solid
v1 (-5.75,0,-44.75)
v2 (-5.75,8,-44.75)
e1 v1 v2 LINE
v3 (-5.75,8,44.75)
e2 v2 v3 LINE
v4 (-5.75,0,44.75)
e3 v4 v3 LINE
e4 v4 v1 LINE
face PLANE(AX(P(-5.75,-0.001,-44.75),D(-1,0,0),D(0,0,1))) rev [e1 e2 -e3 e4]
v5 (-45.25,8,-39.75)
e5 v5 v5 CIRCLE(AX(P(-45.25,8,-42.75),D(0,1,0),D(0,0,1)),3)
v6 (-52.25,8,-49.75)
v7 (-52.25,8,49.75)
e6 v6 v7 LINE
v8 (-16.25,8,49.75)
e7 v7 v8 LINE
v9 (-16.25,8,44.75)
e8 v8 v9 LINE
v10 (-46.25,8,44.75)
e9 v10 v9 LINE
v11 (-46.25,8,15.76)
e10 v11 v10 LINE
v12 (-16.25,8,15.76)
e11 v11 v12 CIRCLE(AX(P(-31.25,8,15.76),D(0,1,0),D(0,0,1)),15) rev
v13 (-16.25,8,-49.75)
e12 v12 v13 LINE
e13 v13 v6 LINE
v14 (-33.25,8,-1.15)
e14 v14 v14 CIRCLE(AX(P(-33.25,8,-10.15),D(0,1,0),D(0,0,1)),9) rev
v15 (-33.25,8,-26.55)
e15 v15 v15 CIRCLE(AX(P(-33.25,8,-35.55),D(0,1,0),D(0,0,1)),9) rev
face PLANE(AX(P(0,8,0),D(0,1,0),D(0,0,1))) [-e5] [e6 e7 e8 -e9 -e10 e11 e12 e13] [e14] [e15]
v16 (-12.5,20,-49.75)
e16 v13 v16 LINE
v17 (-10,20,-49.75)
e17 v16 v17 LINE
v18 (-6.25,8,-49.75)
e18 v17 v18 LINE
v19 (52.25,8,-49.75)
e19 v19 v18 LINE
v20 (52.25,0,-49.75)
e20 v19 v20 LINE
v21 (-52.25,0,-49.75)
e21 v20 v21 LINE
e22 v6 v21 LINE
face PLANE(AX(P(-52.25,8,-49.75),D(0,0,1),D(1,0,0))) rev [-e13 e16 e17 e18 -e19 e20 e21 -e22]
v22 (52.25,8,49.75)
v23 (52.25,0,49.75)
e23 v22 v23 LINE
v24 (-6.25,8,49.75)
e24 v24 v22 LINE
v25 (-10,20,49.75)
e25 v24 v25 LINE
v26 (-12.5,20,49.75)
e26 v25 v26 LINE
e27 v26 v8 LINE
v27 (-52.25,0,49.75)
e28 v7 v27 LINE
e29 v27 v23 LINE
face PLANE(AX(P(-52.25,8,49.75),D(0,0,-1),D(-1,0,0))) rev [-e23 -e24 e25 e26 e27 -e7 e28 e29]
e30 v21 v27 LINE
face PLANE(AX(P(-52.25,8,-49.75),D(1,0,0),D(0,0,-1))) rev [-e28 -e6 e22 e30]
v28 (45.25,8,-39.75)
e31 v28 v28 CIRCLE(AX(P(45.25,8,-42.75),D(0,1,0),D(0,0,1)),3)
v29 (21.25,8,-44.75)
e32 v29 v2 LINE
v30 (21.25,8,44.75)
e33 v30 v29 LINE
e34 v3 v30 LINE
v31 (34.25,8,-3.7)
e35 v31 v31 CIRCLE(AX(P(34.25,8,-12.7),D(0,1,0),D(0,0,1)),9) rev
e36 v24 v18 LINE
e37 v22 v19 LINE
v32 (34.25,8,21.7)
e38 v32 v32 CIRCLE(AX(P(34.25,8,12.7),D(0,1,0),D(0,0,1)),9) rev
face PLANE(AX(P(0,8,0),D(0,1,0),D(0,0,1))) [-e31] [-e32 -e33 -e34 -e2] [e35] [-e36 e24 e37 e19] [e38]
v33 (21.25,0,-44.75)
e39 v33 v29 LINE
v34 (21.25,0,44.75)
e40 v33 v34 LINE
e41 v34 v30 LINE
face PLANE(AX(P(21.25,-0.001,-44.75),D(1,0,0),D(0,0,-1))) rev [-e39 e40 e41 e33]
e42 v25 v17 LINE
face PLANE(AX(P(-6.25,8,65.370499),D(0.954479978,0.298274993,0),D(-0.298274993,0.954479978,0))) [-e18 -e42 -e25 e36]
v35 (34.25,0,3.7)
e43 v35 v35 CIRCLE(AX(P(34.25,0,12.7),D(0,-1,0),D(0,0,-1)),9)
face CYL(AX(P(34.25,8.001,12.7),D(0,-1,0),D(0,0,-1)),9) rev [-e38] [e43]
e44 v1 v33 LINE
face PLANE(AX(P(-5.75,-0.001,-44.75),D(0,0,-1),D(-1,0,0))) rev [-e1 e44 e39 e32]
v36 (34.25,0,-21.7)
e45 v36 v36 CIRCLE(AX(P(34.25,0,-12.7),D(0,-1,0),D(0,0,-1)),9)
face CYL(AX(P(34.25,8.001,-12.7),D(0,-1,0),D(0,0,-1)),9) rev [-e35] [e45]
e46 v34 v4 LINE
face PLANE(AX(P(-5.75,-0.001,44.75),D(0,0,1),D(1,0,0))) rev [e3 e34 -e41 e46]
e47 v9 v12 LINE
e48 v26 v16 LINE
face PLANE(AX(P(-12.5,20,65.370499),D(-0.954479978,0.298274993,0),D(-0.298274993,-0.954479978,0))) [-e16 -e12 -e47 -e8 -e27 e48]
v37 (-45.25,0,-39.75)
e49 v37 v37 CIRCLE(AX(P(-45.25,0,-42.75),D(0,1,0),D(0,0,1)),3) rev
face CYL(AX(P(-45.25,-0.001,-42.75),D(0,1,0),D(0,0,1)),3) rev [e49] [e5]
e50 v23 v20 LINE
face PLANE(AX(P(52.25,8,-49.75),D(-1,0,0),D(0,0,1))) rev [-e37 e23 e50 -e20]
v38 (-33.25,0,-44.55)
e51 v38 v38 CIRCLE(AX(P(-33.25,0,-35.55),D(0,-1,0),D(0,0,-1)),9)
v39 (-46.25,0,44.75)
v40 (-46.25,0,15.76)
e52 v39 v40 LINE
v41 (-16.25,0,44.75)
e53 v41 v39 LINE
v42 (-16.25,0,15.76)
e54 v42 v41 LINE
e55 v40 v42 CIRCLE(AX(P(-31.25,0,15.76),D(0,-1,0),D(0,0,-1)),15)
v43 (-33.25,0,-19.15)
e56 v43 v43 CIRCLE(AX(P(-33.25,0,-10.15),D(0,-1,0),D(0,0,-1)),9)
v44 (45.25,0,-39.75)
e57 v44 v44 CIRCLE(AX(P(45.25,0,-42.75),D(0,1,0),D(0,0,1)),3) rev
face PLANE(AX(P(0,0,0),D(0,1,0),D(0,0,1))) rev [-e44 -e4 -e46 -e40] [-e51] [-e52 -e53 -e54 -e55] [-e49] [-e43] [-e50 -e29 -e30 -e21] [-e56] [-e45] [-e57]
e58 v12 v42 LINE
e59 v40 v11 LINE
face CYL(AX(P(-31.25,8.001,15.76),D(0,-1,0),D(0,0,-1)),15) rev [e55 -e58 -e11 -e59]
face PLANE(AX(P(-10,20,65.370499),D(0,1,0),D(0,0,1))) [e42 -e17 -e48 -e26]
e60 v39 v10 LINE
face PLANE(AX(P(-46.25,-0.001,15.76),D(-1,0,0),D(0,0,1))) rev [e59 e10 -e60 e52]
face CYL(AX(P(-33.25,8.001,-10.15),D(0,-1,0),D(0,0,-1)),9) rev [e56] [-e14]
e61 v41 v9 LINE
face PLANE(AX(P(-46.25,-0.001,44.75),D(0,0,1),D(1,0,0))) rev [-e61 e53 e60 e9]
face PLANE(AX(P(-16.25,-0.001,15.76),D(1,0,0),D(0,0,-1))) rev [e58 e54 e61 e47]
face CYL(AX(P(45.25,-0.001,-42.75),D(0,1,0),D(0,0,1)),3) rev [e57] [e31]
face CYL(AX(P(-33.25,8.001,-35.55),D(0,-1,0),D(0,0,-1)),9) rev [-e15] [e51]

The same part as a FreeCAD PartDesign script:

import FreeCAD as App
import Part
import Sketcher

doc = App.newDocument("Part")
body = doc.addObject("PartDesign::Body", "Body")

# Sketch on XZ plane
sketch1 = body.newObject("Sketcher::SketchObject", "Sketch")
sketch1.AttachmentSupport = (doc.getObject("XZ_Plane"), [""])
sketch1.MapMode = "FlatFace"
sketch1.addGeometry([
    Part.LineSegment(App.Vector(-52, -50, 0), App.Vector(-52, 50, 0)),
    Part.LineSegment(App.Vector(-52, 50, 0), App.Vector(52, 50, 0)),
    Part.LineSegment(App.Vector(52, 50, 0), App.Vector(52, -50, 0)),
    Part.LineSegment(App.Vector(52, -50, 0), App.Vector(-52, -50, 0)),
], False)
sketch1.addConstraint([
    Sketcher.Constraint("Coincident", 0, 2, 1, 1),
    Sketcher.Constraint("Coincident", 1, 2, 2, 1),
    Sketcher.Constraint("Coincident", 2, 2, 3, 1),
    Sketcher.Constraint("Coincident", 3, 2, 0, 1),
    Sketcher.Constraint("Vertical", 0),
    Sketcher.Constraint("Horizontal", 1),
    Sketcher.Constraint("Vertical", 2),
    Sketcher.Constraint("Horizontal", 3),
    Sketcher.Constraint("Symmetric", 0, 2, 2, 2, -1, 1),
    Sketcher.Constraint("DistanceX", 1, 1, 1, 2, 104.5),
    Sketcher.Constraint("DistanceY", 0, 1, 0, 2, 99.5),
])
pad1 = body.newObject("PartDesign::Pad", "Pad")
pad1.Profile = sketch1
pad1.Length = 8
pad1.Reversed = True

# Sketch on XZ plane
sketch2 = body.newObject("Sketcher::SketchObject", "Sketch001")
sketch2.AttachmentSupport = (doc.getObject("XZ_Plane"), [""])
sketch2.MapMode = "FlatFace"
sketch2.addGeometry(Part.Circle(App.Vector(-33, -10, 0), App.Vector(0, 0, 1), 9), False)
sketch2.addConstraint([
    Sketcher.Constraint("Diameter", 0, 18.0),
    Sketcher.Constraint("DistanceX", 0, 3, -1, 1, 33.25),
    Sketcher.Constraint("DistanceY", 0, 3, -1, 1, 10.15),
])
pocket1 = body.newObject("PartDesign::Pocket", "Pocket")
pocket1.Profile = sketch2
pocket1.Type = "UpToFirst"

# Sketch on XZ plane
sketch3 = body.newObject("Sketcher::SketchObject", "Sketch002")
sketch3.AttachmentSupport = (doc.getObject("XZ_Plane"), [""])
sketch3.MapMode = "FlatFace"
sketch3.addGeometry(Part.Circle(App.Vector(-33, -36, 0), App.Vector(0, 0, 1), 9), False)
sketch3.addConstraint([
    Sketcher.Constraint("Diameter", 0, 18.0),
    Sketcher.Constraint("DistanceX", 0, 3, -1, 1, 33.25),
    Sketcher.Constraint("DistanceY", 0, 3, -1, 1, 35.55),
])
pocket2 = body.newObject("PartDesign::Pocket", "Pocket001")
pocket2.Profile = sketch3
pocket2.Type = "UpToFirst"

# Sketch on XZ plane
sketch4 = body.newObject("Sketcher::SketchObject", "Sketch003")
sketch4.AttachmentSupport = (doc.getObject("XZ_Plane"), [""])
sketch4.MapMode = "FlatFace"
sketch4.addGeometry(Part.Circle(App.Vector(34, 13, 0), App.Vector(0, 0, 1), 9), False)
sketch4.addConstraint([
    Sketcher.Constraint("Diameter", 0, 18.0),
    Sketcher.Constraint("DistanceY", -1, 1, 0, 3, 12.7),
    Sketcher.Constraint("DistanceX", -1, 1, 0, 3, 34.25),
])
pocket3 = body.newObject("PartDesign::Pocket", "Pocket002")
pocket3.Profile = sketch4
pocket3.Type = "UpToFirst"

# Sketch on XZ plane
sketch5 = body.newObject("Sketcher::SketchObject", "Sketch004")
sketch5.AttachmentSupport = (doc.getObject("XZ_Plane"), [""])
sketch5.MapMode = "FlatFace"
sketch5.addGeometry(Part.Circle(App.Vector(34, -13, 0), App.Vector(0, 0, 1), 9), False)
sketch5.addConstraint([
    Sketcher.Constraint("Diameter", 0, 18.0),
    Sketcher.Constraint("DistanceY", 0, 3, -1, 1, 12.7),
    Sketcher.Constraint("DistanceX", -1, 1, 0, 3, 34.25),
])
pocket4 = body.newObject("PartDesign::Pocket", "Pocket003")
pocket4.Profile = sketch5
pocket4.Type = "UpToFirst"

# Sketch on XZ plane
sketch6 = body.newObject("Sketcher::SketchObject", "Sketch005")
sketch6.AttachmentSupport = (doc.getObject("XZ_Plane"), [""])
sketch6.MapMode = "FlatFace"
sketch6.addGeometry(Part.Circle(App.Vector(-31, 16, 0), App.Vector(0, 0, 1), 15), False)
sketch6.addConstraint([
    Sketcher.Constraint("Diameter", 0, 30.0),
    Sketcher.Constraint("DistanceX", 0, 3, -1, 1, 31.25),
    Sketcher.Constraint("DistanceY", -1, 1, 0, 3, 15.76),
])
pocket5 = body.newObject("PartDesign::Pocket", "Pocket004")
pocket5.Profile = sketch6
pocket5.Type = "UpToFirst"

# Sketch on XY plane
sketch7 = body.newObject("Sketcher::SketchObject", "Sketch006")
sketch7.AttachmentSupport = (doc.getObject("XY_Plane"), [""])
sketch7.MapMode = "FlatFace"
sketch7.AttachmentOffset = App.Placement(App.Vector(0, 0, -49.75), App.Rotation())
sketch7.addGeometry([
    Part.LineSegment(App.Vector(-10, 20, 0), App.Vector(-6.2, 8, 0)),
    Part.LineSegment(App.Vector(-6.2, 8, 0), App.Vector(-16.2, 8, 0)),
    Part.LineSegment(App.Vector(-16.2, 8, 0), App.Vector(-12.5, 20, 0)),
    Part.LineSegment(App.Vector(-12.5, 20, 0), App.Vector(-10, 20, 0)),
], False)
sketch7.addConstraint([
    Sketcher.Constraint("Coincident", 0, 2, 1, 1),
    Sketcher.Constraint("Coincident", 1, 2, 2, 1),
    Sketcher.Constraint("Coincident", 2, 2, 3, 1),
    Sketcher.Constraint("Coincident", 3, 2, 0, 1),
    Sketcher.Constraint("Horizontal", 1),
    Sketcher.Constraint("Horizontal", 3),
    Sketcher.Constraint("Equal", 0, 2),
    Sketcher.Constraint("DistanceX", 1, 2, 1, 1, 10.0),
    Sketcher.Constraint("DistanceX", 3, 1, 3, 2, 2.5),
    Sketcher.Constraint("DistanceY", -1, 1, 0, 2, 8.0),
    Sketcher.Constraint("DistanceY", -1, 1, 2, 2, 20.0),
    Sketcher.Constraint("DistanceX", 3, 2, -1, 1, 10.0),
])
pad2 = body.newObject("PartDesign::Pad", "Pad001")
pad2.Profile = sketch7
pad2.Length = 99.5

# Sketch on XZ plane
sketch8 = body.newObject("Sketcher::SketchObject", "Sketch007")
sketch8.AttachmentSupport = (doc.getObject("XZ_Plane"), [""])
sketch8.MapMode = "FlatFace"
sketch8.AttachmentOffset = App.Placement(App.Vector(0, 0, -8), App.Rotation())
sketch8.addGeometry([
    Part.LineSegment(App.Vector(-6, -45, 0), App.Vector(-6, 45, 0)),
    Part.LineSegment(App.Vector(-6, 45, 0), App.Vector(21, 45, 0)),
    Part.LineSegment(App.Vector(21, 45, 0), App.Vector(21, -45, 0)),
    Part.LineSegment(App.Vector(21, -45, 0), App.Vector(-6, -45, 0)),
], False)
sketch8.addConstraint([
    Sketcher.Constraint("Coincident", 0, 2, 1, 1),
    Sketcher.Constraint("Coincident", 1, 2, 2, 1),
    Sketcher.Constraint("Coincident", 2, 2, 3, 1),
    Sketcher.Constraint("Coincident", 3, 2, 0, 1),
    Sketcher.Constraint("Vertical", 0),
    Sketcher.Constraint("Horizontal", 1),
    Sketcher.Constraint("Vertical", 2),
    Sketcher.Constraint("Horizontal", 3),
    Sketcher.Constraint("DistanceX", 1, 1, 1, 2, 27.0),
    Sketcher.Constraint("DistanceY", 0, 1, 0, 2, 89.5),
    Sketcher.Constraint("DistanceX", 0, 2, -1, 1, 5.75),
    Sketcher.Constraint("DistanceY", -1, 1, 0, 2, 44.75),
])
pocket6 = body.newObject("PartDesign::Pocket", "Pocket005")
pocket6.Profile = sketch8
pocket6.Type = "UpToFirst"
pocket6.Reversed = True

# Sketch on XZ plane
sketch9 = body.newObject("Sketcher::SketchObject", "Sketch008")
sketch9.AttachmentSupport = (doc.getObject("XZ_Plane"), [""])
sketch9.MapMode = "FlatFace"
sketch9.AttachmentOffset = App.Placement(App.Vector(0, 0, -8), App.Rotation())
sketch9.addGeometry([
    Part.LineSegment(App.Vector(-46, 16, 0), App.Vector(-46, 45, 0)),
    Part.LineSegment(App.Vector(-46, 45, 0), App.Vector(-16, 45, 0)),
    Part.LineSegment(App.Vector(-16, 45, 0), App.Vector(-16, 16, 0)),
    Part.LineSegment(App.Vector(-16, 16, 0), App.Vector(-46, 16, 0)),
], False)
sketch9.addConstraint([
    Sketcher.Constraint("Coincident", 0, 2, 1, 1),
    Sketcher.Constraint("Coincident", 1, 2, 2, 1),
    Sketcher.Constraint("Coincident", 2, 2, 3, 1),
    Sketcher.Constraint("Coincident", 3, 2, 0, 1),
    Sketcher.Constraint("Vertical", 0),
    Sketcher.Constraint("Horizontal", 1),
    Sketcher.Constraint("Vertical", 2),
    Sketcher.Constraint("Horizontal", 3),
    Sketcher.Constraint("DistanceX", 1, 1, 1, 2, 30.0),
    Sketcher.Constraint("DistanceY", 0, 1, 0, 2, 28.99),
    Sketcher.Constraint("DistanceX", 0, 2, -1, 1, 46.25),
    Sketcher.Constraint("DistanceY", -1, 1, 0, 2, 44.75),
])
pocket7 = body.newObject("PartDesign::Pocket", "Pocket006")
pocket7.Profile = sketch9
pocket7.Length = 8
pocket7.Reversed = True

# Sketch on XZ plane
sketch10 = body.newObject("Sketcher::SketchObject", "Sketch009")
sketch10.AttachmentSupport = (doc.getObject("XZ_Plane"), [""])
sketch10.MapMode = "FlatFace"
sketch10.AttachmentOffset = App.Placement(App.Vector(0, 0, -8), App.Rotation())
sketch10.addGeometry(Part.Circle(App.Vector(-45.2, -42.8, 0), App.Vector(0, 0, 1), 3), False)
sketch10.addConstraint([
    Sketcher.Constraint("Diameter", 0, 6.0),
    Sketcher.Constraint("DistanceX", 0, 3, -1, 1, 45.25),
    Sketcher.Constraint("DistanceY", 0, 3, -1, 1, 42.75),
])
pocket8 = body.newObject("PartDesign::Pocket", "Pocket007")
pocket8.Profile = sketch10
pocket8.Type = "UpToFirst"
pocket8.Reversed = True

# Sketch on XZ plane
sketch11 = body.newObject("Sketcher::SketchObject", "Sketch010")
sketch11.AttachmentSupport = (doc.getObject("XZ_Plane"), [""])
sketch11.MapMode = "FlatFace"
sketch11.AttachmentOffset = App.Placement(App.Vector(0, 0, -8), App.Rotation())
sketch11.addGeometry(Part.Circle(App.Vector(45.2, -42.8, 0), App.Vector(0, 0, 1), 3), False)
sketch11.addConstraint([
    Sketcher.Constraint("Diameter", 0, 6.0),
    Sketcher.Constraint("DistanceX", -1, 1, 0, 3, 45.25),
    Sketcher.Constraint("DistanceY", 0, 3, -1, 1, 42.75),
])
pocket9 = body.newObject("PartDesign::Pocket", "Pocket008")
pocket9.Profile = sketch11
pocket9.Type = "UpToFirst"
pocket9.Reversed = True

doc.recompute()
